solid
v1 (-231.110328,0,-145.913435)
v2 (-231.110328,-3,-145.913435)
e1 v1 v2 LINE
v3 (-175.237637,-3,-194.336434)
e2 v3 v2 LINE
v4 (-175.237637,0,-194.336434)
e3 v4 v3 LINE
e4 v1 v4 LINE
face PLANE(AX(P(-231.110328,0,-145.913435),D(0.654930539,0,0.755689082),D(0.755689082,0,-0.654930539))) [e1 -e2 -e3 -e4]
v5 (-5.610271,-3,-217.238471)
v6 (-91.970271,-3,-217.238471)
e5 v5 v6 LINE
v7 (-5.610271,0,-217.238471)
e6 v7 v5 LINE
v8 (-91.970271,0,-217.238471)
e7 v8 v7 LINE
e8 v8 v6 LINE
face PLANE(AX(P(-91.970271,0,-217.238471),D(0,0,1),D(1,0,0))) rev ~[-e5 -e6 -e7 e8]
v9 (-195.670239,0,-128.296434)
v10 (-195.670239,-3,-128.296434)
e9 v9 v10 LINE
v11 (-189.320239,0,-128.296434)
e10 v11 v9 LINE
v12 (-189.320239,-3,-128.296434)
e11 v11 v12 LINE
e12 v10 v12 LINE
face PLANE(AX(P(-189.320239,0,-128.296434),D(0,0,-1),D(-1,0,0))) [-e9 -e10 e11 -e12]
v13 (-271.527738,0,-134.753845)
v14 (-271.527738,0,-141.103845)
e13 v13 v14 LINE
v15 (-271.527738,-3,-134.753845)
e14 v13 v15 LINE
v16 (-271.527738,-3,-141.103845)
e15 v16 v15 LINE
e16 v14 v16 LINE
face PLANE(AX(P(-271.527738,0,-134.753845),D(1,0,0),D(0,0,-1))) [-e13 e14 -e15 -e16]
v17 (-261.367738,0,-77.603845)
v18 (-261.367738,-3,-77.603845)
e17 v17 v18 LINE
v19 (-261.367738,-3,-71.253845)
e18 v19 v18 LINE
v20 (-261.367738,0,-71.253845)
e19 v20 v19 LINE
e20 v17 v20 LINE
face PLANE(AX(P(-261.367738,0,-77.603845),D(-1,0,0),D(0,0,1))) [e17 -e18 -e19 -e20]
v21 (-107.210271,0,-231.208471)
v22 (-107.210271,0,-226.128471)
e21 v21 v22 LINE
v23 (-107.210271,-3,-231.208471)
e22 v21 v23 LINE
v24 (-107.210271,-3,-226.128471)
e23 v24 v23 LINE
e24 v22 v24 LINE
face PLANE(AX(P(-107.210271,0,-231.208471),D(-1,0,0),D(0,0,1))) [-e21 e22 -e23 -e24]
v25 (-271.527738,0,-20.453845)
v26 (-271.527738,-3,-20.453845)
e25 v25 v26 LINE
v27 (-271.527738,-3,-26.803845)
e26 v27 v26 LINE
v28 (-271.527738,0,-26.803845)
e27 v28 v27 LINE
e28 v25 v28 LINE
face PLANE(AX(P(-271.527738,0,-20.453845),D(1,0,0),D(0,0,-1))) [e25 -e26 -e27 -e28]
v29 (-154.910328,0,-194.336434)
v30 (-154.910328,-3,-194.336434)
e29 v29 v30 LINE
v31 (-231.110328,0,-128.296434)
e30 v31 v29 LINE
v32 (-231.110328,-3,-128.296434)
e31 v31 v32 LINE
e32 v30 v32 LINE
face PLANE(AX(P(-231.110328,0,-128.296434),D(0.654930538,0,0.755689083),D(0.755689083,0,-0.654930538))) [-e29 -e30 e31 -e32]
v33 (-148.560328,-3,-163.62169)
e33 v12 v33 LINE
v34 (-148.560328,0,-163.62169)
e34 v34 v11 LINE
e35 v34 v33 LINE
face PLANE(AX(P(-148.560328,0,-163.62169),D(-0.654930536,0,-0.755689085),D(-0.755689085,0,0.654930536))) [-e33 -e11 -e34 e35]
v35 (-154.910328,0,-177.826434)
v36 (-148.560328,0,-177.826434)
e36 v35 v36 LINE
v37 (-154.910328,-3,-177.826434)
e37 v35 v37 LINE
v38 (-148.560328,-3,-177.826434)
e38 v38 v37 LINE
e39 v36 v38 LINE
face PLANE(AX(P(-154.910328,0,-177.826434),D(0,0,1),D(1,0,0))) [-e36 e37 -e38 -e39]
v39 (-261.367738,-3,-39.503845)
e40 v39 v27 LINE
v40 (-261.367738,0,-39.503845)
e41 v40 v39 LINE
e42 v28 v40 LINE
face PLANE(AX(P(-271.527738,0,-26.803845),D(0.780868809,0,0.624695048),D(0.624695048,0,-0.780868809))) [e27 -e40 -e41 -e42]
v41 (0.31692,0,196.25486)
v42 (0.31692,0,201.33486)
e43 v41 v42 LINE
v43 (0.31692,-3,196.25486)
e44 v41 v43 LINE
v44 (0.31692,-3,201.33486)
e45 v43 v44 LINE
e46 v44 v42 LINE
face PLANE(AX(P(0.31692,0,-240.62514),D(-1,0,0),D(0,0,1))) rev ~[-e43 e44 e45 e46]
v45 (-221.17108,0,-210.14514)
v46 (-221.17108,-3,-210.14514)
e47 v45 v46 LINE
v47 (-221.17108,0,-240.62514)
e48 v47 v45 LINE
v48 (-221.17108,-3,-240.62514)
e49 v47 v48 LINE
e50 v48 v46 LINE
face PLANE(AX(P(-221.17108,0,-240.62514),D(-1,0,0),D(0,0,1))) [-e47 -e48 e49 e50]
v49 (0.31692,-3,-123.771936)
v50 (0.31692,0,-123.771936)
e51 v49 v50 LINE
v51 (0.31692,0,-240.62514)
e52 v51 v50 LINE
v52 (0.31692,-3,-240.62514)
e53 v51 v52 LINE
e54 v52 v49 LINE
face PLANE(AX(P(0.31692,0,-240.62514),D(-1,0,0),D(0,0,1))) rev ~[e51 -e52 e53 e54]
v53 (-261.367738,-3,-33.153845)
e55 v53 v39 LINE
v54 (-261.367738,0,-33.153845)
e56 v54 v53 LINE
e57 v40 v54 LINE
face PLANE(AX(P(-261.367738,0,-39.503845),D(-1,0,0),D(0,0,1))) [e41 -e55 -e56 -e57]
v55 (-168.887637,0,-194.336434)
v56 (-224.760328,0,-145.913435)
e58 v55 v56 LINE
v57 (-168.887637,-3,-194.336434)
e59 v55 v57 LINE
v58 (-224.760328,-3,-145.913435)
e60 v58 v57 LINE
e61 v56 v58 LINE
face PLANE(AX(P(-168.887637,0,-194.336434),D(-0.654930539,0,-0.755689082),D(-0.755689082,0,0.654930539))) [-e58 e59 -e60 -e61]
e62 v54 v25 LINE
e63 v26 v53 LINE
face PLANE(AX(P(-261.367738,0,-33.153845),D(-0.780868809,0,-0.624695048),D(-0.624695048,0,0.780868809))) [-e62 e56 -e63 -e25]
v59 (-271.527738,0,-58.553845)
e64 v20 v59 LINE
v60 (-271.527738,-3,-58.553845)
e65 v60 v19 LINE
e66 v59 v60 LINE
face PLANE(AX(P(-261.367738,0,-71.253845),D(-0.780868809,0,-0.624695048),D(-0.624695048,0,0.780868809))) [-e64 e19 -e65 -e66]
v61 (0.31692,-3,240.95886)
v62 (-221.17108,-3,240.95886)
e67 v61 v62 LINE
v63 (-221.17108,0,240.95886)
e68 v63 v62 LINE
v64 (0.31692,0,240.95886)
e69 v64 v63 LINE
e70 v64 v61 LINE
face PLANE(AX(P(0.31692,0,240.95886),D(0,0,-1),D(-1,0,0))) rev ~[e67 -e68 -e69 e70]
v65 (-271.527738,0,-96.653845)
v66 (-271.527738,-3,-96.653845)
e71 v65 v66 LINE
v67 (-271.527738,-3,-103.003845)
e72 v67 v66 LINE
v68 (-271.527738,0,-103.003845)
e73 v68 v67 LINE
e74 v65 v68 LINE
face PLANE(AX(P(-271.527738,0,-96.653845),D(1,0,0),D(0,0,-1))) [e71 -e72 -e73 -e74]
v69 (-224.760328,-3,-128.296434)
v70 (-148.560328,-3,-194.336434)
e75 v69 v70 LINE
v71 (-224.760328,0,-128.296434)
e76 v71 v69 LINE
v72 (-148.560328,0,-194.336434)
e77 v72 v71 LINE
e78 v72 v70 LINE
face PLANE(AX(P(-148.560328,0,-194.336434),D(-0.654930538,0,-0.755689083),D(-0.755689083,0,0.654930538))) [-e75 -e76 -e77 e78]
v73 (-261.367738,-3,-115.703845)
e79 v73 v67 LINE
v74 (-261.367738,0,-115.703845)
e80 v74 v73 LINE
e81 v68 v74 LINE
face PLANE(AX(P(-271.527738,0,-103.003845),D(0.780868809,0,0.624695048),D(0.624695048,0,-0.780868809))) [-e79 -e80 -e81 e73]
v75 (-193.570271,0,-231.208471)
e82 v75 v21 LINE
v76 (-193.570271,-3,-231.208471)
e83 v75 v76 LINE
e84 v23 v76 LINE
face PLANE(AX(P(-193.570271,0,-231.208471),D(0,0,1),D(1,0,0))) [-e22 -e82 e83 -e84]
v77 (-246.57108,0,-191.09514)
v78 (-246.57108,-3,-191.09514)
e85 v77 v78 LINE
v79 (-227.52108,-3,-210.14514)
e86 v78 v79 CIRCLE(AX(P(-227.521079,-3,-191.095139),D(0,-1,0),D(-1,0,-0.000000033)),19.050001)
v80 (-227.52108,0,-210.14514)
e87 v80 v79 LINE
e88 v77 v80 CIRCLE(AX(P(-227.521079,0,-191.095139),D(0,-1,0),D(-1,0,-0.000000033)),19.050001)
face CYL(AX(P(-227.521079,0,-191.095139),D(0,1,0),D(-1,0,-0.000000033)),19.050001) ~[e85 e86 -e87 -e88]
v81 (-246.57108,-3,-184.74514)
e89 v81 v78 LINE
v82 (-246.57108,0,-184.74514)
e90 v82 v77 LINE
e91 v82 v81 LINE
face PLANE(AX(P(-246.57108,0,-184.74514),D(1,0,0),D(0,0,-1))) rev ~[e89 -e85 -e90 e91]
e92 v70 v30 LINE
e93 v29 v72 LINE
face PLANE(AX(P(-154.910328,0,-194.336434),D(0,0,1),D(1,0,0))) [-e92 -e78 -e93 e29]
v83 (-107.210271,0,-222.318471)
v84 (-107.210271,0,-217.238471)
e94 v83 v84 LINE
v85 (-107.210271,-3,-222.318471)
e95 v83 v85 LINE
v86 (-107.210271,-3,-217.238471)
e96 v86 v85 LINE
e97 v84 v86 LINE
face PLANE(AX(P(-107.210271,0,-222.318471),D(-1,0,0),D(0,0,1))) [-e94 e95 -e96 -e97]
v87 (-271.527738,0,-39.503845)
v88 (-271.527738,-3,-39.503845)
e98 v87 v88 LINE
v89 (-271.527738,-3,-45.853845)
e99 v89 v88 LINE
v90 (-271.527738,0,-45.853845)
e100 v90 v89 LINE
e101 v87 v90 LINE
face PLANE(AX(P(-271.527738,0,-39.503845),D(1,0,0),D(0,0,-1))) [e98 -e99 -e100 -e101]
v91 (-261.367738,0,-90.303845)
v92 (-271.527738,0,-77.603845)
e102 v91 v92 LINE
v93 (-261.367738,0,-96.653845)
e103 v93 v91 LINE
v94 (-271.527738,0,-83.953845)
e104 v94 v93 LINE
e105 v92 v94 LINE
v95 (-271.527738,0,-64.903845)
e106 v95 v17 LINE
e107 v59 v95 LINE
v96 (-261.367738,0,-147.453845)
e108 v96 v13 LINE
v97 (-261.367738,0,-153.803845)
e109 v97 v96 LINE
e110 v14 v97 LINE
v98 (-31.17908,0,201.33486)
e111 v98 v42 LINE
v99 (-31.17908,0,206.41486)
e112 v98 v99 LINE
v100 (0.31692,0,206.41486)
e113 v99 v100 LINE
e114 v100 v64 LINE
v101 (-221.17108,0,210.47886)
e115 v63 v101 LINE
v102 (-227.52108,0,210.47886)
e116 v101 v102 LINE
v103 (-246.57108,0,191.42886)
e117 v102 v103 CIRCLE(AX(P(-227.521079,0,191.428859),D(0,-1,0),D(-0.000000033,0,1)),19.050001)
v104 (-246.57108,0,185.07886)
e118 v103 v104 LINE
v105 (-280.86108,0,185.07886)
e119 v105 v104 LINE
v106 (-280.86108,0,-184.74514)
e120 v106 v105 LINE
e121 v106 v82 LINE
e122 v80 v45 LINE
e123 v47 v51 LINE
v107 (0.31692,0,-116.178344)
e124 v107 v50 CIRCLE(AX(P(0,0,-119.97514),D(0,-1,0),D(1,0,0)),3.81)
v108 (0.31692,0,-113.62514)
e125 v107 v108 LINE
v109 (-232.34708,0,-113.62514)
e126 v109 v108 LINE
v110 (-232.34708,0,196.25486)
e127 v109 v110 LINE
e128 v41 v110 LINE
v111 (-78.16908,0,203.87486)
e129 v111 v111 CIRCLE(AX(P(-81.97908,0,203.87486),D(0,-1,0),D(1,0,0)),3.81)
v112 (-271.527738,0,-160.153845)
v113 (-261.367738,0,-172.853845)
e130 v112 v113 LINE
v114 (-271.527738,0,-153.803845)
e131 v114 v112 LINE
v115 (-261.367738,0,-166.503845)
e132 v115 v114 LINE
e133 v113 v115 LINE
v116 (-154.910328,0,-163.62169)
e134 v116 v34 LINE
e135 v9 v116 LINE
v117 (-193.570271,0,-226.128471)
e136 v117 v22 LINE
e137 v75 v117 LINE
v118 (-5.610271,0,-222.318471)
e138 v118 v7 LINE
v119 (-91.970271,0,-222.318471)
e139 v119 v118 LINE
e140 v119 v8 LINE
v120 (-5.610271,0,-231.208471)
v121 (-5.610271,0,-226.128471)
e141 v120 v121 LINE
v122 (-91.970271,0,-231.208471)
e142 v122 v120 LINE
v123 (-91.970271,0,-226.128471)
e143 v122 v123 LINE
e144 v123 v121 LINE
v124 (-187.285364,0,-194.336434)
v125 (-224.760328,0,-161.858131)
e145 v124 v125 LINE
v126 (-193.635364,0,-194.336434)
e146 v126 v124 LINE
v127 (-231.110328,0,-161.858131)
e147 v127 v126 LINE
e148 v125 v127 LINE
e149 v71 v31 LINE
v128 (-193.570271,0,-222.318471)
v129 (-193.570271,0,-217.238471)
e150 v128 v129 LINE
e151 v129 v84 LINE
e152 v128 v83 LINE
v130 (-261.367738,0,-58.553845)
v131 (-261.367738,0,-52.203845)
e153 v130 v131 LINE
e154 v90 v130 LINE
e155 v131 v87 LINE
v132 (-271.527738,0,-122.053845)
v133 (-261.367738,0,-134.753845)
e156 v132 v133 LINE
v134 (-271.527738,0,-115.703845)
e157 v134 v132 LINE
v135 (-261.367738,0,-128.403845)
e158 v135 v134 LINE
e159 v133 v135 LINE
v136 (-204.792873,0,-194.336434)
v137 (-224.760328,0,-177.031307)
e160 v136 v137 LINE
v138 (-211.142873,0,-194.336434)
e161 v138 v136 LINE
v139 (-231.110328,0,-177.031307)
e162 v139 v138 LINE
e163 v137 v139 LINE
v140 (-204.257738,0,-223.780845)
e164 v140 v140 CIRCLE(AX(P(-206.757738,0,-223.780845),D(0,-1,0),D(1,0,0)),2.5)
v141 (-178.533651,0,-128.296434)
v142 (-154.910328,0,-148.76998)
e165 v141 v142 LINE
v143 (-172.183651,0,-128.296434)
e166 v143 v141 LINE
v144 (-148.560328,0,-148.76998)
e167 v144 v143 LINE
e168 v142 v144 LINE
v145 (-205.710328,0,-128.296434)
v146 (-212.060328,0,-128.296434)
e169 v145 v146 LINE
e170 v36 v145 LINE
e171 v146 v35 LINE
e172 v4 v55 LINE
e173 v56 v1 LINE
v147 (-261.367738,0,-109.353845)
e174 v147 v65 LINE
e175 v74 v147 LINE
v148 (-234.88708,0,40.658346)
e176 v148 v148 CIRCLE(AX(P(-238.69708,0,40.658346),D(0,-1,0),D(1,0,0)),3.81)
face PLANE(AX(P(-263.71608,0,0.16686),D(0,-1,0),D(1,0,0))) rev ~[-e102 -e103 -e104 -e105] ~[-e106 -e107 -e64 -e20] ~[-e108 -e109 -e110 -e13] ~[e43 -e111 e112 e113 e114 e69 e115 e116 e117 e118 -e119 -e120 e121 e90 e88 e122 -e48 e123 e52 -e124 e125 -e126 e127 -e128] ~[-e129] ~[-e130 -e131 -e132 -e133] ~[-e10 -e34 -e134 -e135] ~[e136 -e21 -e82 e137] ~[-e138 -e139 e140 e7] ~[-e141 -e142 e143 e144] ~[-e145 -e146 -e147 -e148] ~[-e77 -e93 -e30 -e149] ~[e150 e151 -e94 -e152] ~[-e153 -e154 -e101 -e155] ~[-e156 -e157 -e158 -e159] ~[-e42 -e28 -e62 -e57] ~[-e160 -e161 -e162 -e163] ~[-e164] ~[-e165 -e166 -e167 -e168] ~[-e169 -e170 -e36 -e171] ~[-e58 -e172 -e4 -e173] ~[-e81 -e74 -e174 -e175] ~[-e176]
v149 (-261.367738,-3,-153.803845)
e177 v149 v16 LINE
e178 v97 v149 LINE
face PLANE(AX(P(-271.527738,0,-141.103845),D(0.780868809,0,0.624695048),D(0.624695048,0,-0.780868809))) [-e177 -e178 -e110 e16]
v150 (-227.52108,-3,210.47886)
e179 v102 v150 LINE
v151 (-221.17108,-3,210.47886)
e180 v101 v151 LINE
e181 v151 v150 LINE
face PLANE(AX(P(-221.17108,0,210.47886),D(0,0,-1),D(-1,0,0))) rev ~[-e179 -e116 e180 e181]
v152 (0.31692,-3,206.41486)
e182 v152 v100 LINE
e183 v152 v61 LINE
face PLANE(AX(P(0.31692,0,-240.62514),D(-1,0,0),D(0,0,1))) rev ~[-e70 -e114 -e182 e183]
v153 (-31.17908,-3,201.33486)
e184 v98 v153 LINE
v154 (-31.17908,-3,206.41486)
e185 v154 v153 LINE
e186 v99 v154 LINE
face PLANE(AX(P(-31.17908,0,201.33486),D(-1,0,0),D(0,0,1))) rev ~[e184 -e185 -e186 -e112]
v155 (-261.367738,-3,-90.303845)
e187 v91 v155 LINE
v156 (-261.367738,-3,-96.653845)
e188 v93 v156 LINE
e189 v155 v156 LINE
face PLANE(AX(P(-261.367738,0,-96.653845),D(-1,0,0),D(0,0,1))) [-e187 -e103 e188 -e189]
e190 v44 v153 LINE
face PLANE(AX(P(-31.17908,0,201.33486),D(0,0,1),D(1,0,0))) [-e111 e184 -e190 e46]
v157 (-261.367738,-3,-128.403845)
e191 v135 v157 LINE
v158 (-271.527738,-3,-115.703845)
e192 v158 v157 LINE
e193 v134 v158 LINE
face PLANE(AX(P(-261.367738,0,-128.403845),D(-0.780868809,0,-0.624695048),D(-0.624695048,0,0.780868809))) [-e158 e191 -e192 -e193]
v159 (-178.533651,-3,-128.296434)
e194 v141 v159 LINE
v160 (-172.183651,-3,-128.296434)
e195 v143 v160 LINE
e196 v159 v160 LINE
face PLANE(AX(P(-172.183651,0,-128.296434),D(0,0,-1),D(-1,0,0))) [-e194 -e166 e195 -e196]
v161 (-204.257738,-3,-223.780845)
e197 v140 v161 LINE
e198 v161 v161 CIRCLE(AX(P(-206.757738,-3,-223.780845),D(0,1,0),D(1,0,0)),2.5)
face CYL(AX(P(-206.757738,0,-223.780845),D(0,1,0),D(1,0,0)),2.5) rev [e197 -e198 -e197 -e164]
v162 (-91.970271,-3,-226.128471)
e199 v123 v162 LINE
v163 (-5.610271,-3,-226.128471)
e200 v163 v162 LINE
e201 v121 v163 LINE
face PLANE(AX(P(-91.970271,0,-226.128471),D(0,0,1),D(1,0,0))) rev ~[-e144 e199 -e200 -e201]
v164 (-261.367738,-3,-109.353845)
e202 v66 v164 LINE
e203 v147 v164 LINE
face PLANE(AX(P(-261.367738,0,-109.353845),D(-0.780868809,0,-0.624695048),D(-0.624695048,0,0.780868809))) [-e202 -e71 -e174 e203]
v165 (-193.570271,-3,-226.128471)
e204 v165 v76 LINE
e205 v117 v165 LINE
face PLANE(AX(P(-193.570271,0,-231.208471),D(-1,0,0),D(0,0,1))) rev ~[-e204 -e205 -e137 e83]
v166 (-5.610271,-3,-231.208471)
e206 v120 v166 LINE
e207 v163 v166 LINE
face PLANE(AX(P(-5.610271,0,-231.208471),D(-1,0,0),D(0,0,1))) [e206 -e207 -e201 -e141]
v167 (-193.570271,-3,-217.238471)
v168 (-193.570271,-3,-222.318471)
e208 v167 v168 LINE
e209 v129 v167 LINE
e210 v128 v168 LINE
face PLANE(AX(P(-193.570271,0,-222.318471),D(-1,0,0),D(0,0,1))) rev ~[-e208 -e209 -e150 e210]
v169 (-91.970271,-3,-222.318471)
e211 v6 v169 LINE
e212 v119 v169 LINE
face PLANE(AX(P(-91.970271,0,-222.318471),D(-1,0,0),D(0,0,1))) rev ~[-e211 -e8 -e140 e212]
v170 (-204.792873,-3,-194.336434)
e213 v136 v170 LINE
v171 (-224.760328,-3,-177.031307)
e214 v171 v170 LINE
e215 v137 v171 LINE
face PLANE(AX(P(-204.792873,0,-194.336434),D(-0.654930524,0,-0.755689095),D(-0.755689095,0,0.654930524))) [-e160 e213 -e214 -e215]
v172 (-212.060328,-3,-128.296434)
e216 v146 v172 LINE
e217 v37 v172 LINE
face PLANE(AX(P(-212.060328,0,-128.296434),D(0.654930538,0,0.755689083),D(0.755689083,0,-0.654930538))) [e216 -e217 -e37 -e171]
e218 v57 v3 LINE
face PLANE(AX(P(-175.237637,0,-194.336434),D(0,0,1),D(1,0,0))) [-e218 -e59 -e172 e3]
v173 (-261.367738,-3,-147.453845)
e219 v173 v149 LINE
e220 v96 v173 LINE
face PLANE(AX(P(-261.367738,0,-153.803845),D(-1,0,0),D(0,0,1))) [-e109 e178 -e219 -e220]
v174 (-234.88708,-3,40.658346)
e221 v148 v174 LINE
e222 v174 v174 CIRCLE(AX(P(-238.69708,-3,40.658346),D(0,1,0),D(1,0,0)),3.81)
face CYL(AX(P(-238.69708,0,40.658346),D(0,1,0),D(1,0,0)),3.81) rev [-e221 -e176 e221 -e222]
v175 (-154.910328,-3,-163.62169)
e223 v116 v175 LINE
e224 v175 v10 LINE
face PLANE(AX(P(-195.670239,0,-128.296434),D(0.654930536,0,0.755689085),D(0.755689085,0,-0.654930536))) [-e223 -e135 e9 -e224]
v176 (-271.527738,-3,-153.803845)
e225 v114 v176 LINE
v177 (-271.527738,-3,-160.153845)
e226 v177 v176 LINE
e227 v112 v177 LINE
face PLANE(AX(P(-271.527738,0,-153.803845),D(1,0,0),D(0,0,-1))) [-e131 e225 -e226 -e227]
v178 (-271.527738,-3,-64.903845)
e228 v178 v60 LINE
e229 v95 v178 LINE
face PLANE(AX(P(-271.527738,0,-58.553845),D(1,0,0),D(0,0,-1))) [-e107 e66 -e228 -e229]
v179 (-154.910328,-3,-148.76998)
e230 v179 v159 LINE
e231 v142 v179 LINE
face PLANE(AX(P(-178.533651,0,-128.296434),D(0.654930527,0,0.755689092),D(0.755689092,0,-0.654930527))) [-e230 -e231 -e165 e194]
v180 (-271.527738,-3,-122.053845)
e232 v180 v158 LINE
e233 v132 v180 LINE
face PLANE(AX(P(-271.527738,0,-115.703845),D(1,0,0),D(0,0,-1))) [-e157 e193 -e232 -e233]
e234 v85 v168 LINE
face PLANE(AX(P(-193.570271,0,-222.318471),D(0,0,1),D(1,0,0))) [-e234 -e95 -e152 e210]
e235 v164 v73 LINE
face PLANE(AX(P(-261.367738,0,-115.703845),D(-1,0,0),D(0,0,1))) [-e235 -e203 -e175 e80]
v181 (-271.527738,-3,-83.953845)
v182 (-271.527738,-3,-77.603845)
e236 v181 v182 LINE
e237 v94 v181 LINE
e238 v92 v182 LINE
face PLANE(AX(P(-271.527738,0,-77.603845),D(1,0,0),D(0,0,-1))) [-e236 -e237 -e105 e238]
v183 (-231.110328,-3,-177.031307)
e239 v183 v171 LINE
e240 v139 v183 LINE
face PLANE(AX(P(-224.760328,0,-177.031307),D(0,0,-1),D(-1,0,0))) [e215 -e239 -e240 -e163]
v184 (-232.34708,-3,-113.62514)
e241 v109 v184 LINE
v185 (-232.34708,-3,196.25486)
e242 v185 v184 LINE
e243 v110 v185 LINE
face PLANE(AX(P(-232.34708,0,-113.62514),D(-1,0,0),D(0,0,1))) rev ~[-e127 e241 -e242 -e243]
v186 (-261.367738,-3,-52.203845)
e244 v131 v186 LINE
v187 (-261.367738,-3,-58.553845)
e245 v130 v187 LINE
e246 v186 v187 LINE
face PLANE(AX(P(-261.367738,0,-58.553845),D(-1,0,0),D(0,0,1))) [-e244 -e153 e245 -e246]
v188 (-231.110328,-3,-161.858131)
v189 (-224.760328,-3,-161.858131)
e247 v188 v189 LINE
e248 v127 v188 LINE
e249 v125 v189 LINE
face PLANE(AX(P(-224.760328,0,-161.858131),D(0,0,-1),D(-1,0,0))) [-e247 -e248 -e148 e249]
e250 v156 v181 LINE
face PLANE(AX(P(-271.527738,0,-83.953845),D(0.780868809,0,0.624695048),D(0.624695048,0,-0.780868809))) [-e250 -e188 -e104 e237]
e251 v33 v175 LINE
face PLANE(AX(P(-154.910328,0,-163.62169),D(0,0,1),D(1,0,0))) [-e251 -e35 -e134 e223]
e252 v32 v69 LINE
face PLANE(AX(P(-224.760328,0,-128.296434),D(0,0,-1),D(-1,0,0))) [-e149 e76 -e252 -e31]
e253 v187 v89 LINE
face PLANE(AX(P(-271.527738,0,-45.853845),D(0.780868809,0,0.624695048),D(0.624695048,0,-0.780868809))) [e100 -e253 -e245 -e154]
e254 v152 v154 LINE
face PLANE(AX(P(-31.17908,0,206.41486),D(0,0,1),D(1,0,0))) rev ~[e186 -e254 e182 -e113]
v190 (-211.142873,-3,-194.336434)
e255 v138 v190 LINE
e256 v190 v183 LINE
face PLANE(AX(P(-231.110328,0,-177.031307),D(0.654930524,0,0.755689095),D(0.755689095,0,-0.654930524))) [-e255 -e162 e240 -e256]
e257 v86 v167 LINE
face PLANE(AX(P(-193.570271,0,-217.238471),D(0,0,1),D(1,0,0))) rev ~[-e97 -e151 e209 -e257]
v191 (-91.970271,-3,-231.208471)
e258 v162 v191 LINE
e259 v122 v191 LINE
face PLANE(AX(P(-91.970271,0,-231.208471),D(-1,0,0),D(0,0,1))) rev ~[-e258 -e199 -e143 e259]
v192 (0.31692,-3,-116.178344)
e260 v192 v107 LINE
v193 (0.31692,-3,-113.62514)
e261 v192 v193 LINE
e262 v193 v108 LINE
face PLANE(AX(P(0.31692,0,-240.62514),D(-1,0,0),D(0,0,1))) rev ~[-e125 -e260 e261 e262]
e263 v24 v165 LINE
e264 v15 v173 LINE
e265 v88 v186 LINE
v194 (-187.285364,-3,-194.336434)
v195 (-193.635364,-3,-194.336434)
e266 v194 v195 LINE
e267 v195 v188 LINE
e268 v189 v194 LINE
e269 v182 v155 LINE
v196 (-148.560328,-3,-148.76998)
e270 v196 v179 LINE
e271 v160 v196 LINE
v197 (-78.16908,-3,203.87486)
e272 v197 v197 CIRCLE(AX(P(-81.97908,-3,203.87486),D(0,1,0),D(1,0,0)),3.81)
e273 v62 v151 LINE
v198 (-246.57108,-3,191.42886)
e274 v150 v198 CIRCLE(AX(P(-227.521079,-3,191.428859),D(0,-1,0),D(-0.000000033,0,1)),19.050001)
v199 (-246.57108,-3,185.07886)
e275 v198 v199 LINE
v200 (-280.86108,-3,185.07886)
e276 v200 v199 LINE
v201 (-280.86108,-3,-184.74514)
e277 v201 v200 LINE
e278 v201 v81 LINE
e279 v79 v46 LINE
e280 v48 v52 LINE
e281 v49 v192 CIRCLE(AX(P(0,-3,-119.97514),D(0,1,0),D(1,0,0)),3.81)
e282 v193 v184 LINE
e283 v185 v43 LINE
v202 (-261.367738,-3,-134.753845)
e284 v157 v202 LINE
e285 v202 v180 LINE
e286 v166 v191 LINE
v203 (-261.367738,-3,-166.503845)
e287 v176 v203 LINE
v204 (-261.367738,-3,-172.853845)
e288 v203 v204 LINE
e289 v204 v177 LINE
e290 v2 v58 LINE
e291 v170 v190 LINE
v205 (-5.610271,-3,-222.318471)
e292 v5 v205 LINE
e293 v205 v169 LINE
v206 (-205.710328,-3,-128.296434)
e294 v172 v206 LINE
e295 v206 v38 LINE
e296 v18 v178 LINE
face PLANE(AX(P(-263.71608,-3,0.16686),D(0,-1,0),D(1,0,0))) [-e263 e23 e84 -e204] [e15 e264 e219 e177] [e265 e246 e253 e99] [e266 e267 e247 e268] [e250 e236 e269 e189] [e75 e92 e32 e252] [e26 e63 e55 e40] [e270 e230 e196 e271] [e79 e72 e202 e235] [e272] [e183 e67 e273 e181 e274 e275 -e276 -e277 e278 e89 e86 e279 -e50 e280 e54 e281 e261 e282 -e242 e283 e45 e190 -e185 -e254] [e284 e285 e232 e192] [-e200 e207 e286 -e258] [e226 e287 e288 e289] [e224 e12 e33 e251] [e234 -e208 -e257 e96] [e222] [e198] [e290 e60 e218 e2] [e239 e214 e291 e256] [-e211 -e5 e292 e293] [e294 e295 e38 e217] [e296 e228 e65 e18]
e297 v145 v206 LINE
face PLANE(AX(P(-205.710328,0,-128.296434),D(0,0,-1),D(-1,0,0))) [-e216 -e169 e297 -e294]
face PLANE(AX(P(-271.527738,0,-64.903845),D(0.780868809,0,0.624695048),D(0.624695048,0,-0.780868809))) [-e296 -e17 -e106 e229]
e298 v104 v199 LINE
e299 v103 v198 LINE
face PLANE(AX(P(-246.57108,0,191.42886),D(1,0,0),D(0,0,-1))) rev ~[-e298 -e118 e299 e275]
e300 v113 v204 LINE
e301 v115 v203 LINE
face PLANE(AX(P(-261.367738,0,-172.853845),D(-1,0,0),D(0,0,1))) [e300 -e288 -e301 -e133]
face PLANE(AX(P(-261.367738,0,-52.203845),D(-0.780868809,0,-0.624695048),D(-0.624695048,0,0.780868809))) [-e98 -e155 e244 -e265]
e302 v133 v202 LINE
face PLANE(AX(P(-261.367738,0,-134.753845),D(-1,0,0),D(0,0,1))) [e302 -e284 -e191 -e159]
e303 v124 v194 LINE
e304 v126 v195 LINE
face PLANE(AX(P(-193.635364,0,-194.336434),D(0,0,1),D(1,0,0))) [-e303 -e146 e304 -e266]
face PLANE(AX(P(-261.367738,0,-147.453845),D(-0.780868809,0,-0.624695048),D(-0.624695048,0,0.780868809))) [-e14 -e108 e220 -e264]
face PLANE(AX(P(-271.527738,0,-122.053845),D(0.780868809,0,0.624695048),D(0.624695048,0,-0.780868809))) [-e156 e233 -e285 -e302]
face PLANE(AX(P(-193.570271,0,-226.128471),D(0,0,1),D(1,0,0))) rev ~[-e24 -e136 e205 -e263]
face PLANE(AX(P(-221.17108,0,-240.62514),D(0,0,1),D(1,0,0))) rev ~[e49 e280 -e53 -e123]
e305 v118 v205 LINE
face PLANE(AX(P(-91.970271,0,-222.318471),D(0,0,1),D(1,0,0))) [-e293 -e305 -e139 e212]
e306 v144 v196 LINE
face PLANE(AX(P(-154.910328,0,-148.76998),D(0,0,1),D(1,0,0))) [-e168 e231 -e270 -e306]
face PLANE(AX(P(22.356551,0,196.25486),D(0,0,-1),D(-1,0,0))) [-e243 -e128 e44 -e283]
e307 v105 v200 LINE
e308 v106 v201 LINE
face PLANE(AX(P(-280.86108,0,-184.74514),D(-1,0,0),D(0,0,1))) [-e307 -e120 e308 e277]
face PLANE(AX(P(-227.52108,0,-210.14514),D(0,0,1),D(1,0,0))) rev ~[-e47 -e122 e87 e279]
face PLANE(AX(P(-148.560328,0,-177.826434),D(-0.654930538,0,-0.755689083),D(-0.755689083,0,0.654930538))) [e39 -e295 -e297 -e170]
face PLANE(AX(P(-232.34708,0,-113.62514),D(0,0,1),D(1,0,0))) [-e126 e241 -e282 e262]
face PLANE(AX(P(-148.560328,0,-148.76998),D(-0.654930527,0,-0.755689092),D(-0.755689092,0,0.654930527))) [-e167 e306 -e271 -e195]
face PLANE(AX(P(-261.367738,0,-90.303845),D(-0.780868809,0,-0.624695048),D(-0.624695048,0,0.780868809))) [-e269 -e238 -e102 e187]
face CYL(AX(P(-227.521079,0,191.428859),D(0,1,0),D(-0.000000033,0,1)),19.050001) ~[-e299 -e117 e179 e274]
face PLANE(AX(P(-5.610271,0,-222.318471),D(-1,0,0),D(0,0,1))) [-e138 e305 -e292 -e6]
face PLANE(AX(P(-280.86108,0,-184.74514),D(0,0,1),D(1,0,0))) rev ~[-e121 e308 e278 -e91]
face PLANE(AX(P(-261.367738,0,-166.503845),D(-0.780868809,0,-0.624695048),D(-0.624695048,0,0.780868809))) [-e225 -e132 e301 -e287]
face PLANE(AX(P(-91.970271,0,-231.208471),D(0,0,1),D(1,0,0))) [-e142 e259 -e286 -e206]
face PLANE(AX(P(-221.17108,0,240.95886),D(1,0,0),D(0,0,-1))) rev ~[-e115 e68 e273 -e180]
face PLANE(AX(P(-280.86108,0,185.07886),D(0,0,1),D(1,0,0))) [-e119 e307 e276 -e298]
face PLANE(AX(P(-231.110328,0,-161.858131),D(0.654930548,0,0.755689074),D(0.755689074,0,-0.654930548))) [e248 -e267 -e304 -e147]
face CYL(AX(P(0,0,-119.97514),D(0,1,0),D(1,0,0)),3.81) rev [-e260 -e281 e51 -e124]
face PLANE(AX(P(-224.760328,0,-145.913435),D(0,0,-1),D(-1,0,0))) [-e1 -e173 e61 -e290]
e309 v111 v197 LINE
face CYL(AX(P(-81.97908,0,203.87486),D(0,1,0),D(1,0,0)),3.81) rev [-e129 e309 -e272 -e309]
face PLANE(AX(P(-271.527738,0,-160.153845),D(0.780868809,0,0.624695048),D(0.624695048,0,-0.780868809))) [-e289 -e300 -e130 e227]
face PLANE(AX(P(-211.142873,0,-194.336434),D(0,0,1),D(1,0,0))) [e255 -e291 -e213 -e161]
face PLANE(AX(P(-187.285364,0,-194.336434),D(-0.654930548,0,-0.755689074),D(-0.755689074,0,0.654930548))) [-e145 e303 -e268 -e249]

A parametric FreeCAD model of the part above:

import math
import FreeCAD as App
import Part
import Sketcher
Q = App.Units.Quantity

doc = App.newDocument("Part")
body = doc.addObject("PartDesign::Body", "Body")

# Sketch on XZ plane
sketch1 = doc.addObject("Sketcher::SketchObject", "Sketch")
body.addObject(sketch1)
sketch1.AttachmentSupport = (doc.XZ_Plane, [""])
sketch1.MapMode = "FlatFace"
sketch1.addGeometry([
    Part.LineSegment(App.Vector(-280.86108, 185.07886, 0), App.Vector(-280.86108, -184.74514, 0)),  # 0
    Part.LineSegment(App.Vector(-280.86108, -184.74514, 0), App.Vector(-246.57108, -184.74514, 0)),  # 1
    Part.LineSegment(App.Vector(-246.57108, -184.74514, 0), App.Vector(-246.57108, -191.09514, 0)),  # 2
    Part.ArcOfCircle(Part.Circle(App.Vector(-227.521079, -191.095139, 0), App.Vector(0, 0, 1), 19.050001), math.radians(-179.999998), math.radians(-90.000002)),  # 3
    Part.LineSegment(App.Vector(-227.52108, -210.14514, 0), App.Vector(-221.17108, -210.14514, 0)),  # 4
    Part.LineSegment(App.Vector(-221.17108, -210.14514, 0), App.Vector(-221.17108, -240.62514, 0)),  # 5
    Part.LineSegment(App.Vector(-221.17108, -240.62514, 0), App.Vector(0.31692, -240.62514, 0)),  # 6
    Part.LineSegment(App.Vector(0.31692, -240.62514, 0), App.Vector(0.31692, 240.95886, 0)),  # 7
    Part.LineSegment(App.Vector(0.31692, 240.95886, 0), App.Vector(-221.17108, 240.95886, 0)),  # 8
    Part.LineSegment(App.Vector(-221.17108, 240.95886, 0), App.Vector(-221.17108, 210.47886, 0)),  # 9
    Part.LineSegment(App.Vector(-221.17108, 210.47886, 0), App.Vector(-227.52108, 210.47886, 0)),  # 10
    Part.ArcOfCircle(Part.Circle(App.Vector(-227.521079, 191.428859, 0), App.Vector(0, 0, 1), 19.050001), math.radians(90.000002), math.radians(179.999998)),  # 11
    Part.LineSegment(App.Vector(-246.57108, 191.42886, 0), App.Vector(-246.57108, 185.07886, 0)),  # 12
    Part.LineSegment(App.Vector(-246.57108, 185.07886, 0), App.Vector(-280.86108, 185.07886, 0)),  # 13
], False)
sketch1.addConstraint([
    Sketcher.Constraint("Coincident", 0, 2, 1, 1),
    Sketcher.Constraint("Coincident", 1, 2, 2, 1),
    Sketcher.Constraint("Tangent", 2, 2, 3, 1),
    Sketcher.Constraint("Tangent", 3, 2, 4, 1),
    Sketcher.Constraint("Coincident", 4, 2, 5, 1),
    Sketcher.Constraint("Coincident", 5, 2, 6, 1),
    Sketcher.Constraint("Coincident", 6, 2, 7, 1),
    Sketcher.Constraint("Coincident", 7, 2, 8, 1),
    Sketcher.Constraint("Coincident", 8, 2, 9, 1),
    Sketcher.Constraint("Coincident", 9, 2, 10, 1),
    Sketcher.Constraint("Tangent", 10, 2, 11, 1),
    Sketcher.Constraint("Tangent", 11, 2, 12, 1),
    Sketcher.Constraint("Coincident", 12, 2, 13, 1),
    Sketcher.Constraint("Coincident", 13, 2, 0, 1),
    Sketcher.Constraint("Vertical", 0),
    Sketcher.Constraint("Horizontal", 1),
    Sketcher.Constraint("Vertical", 2),
    Sketcher.Constraint("Horizontal", 4),
    Sketcher.Constraint("Vertical", 5),
    Sketcher.Constraint("Horizontal", 6),
    Sketcher.Constraint("Vertical", 7),
    Sketcher.Constraint("Horizontal", 8),
    Sketcher.Constraint("Vertical", 9),
    Sketcher.Constraint("Horizontal", 10),
    Sketcher.Constraint("Vertical", 12),
    Sketcher.Constraint("Horizontal", 13),
    Sketcher.Constraint("Equal", 3, 11),
    Sketcher.Constraint("Vertical", 3, 3, 11, 3),
    Sketcher.Constraint("Vertical", 5, 2, 8, 2),
    Sketcher.Constraint("Equal", 10, 2),
    Sketcher.Constraint("Equal", 5, 9),
    Sketcher.Constraint("Equal", 2, 12),
    Sketcher.Constraint("Radius", 3, Q("0.75 in")),
    Sketcher.Constraint("DistanceY", 5, 2, 5, 1, Q("1.2 in")),
    Sketcher.Constraint("DistanceY", 3, 2, 1, 2, Q("1 in")),
    Sketcher.Constraint("DistanceX", 1, 1, 1, 2, Q("1.35 in")),
    Sketcher.Constraint("DistanceX", 6, 1, 6, 2, Q("8.72 in")),
    Sketcher.Constraint("DistanceY", 0, 2, 0, 1, Q("14.56 in")),
    Sketcher.Constraint("DistanceX", 3, 3, -1, 1, 227.521079),
    Sketcher.Constraint("DistanceY", 3, 3, -1, 1, 191.095139),
])
pad1 = doc.addObject("PartDesign::Pad", "Pad")
body.addObject(pad1)
pad1.Profile = sketch1
pad1.Length = 3

# Sketch on XZ plane
sketch2 = doc.addObject("Sketcher::SketchObject", "Sketch001")
body.addObject(sketch2)
sketch2.AttachmentSupport = (doc.XZ_Plane, [""])
sketch2.MapMode = "FlatFace"
sketch2.addGeometry([
    Part.LineSegment(App.Vector(-232.34708, 196.25486, 0), App.Vector(-232.34708, -113.62514, 0)),  # 0
    Part.LineSegment(App.Vector(-232.34708, -113.62514, 0), App.Vector(22.356551, -113.62514, 0)),  # 1
    Part.LineSegment(App.Vector(22.356551, -113.62514, 0), App.Vector(22.356551, 196.25486, 0)),  # 2
    Part.LineSegment(App.Vector(22.356551, 196.25486, 0), App.Vector(-232.34708, 196.25486, 0)),  # 3
    Part.LineSegment(App.Vector(-261.367738, -166.503845, 0), App.Vector(-271.527738, -153.803845, 0)),  # 4
    Part.LineSegment(App.Vector(-271.527738, -153.803845, 0), App.Vector(-271.527738, -160.153845, 0)),  # 5
    Part.LineSegment(App.Vector(-271.527738, -160.153845, 0), App.Vector(-261.367738, -172.853845, 0)),  # 6
    Part.LineSegment(App.Vector(-261.367738, -172.853845, 0), App.Vector(-261.367738, -166.503845, 0)),  # 7
    Part.LineSegment(App.Vector(-271.527738, -134.753845, 0), App.Vector(-271.527738, -141.103845, 0)),  # 8
    Part.LineSegment(App.Vector(-271.527738, -141.103845, 0), App.Vector(-261.367738, -153.803845, 0)),  # 9
    Part.LineSegment(App.Vector(-261.367738, -153.803845, 0), App.Vector(-261.367738, -147.453845, 0)),  # 10
    Part.LineSegment(App.Vector(-261.367738, -147.453845, 0), App.Vector(-271.527738, -134.753845, 0)),  # 11
    Part.LineSegment(App.Vector(-271.527738, -122.053845, 0), App.Vector(-261.367738, -134.753845, 0)),  # 12
    Part.LineSegment(App.Vector(-261.367738, -134.753845, 0), App.Vector(-261.367738, -128.403845, 0)),  # 13
    Part.LineSegment(App.Vector(-261.367738, -128.403845, 0), App.Vector(-271.527738, -115.703845, 0)),  # 14
    Part.LineSegment(App.Vector(-271.527738, -115.703845, 0), App.Vector(-271.527738, -122.053845, 0)),  # 15
    Part.LineSegment(App.Vector(-271.527738, -103.003845, 0), App.Vector(-261.367738, -115.703845, 0)),  # 16
    Part.LineSegment(App.Vector(-261.367738, -115.703845, 0), App.Vector(-261.367738, -109.353845, 0)),  # 17
    Part.LineSegment(App.Vector(-261.367738, -109.353845, 0), App.Vector(-271.527738, -96.653845, 0)),  # 18
    Part.LineSegment(App.Vector(-271.527738, -96.653845, 0), App.Vector(-271.527738, -103.003845, 0)),  # 19
    Part.LineSegment(App.Vector(-271.527738, -83.953845, 0), App.Vector(-261.367738, -96.653845, 0)),  # 20
    Part.LineSegment(App.Vector(-261.367738, -96.653845, 0), App.Vector(-261.367738, -90.303845, 0)),  # 21
    Part.LineSegment(App.Vector(-261.367738, -90.303845, 0), App.Vector(-271.527738, -77.603845, 0)),  # 22
    Part.LineSegment(App.Vector(-271.527738, -77.603845, 0), App.Vector(-271.527738, -83.953845, 0)),  # 23
    Part.LineSegment(App.Vector(-271.527738, -64.903845, 0), App.Vector(-261.367738, -77.603845, 0)),  # 24
    Part.LineSegment(App.Vector(-261.367738, -77.603845, 0), App.Vector(-261.367738, -71.253845, 0)),  # 25
    Part.LineSegment(App.Vector(-261.367738, -71.253845, 0), App.Vector(-271.527738, -58.553845, 0)),  # 26
    Part.LineSegment(App.Vector(-271.527738, -58.553845, 0), App.Vector(-271.527738, -64.903845, 0)),  # 27
    Part.LineSegment(App.Vector(-271.527738, -45.853845, 0), App.Vector(-261.367738, -58.553845, 0)),  # 28
    Part.LineSegment(App.Vector(-261.367738, -58.553845, 0), App.Vector(-261.367738, -52.203845, 0)),  # 29
    Part.LineSegment(App.Vector(-261.367738, -52.203845, 0), App.Vector(-271.527738, -39.503845, 0)),  # 30
    Part.LineSegment(App.Vector(-271.527738, -39.503845, 0), App.Vector(-271.527738, -45.853845, 0)),  # 31
    Part.LineSegment(App.Vector(-271.527738, -26.803845, 0), App.Vector(-261.367738, -39.503845, 0)),  # 32
    Part.LineSegment(App.Vector(-261.367738, -39.503845, 0), App.Vector(-261.367738, -33.153845, 0)),  # 33
    Part.LineSegment(App.Vector(-261.367738, -33.153845, 0), App.Vector(-271.527738, -20.453845, 0)),  # 34
    Part.LineSegment(App.Vector(-271.527738, -20.453845, 0), App.Vector(-271.527738, -26.803845, 0)),  # 35
    Part.LineSegment(App.Vector(-193.570271, -226.128471, 0), App.Vector(-193.570271, -231.208471, 0)),  # 36
    Part.LineSegment(App.Vector(-193.570271, -231.208471, 0), App.Vector(-107.210271, -231.208471, 0)),  # 37
    Part.LineSegment(App.Vector(-107.210271, -231.208471, 0), App.Vector(-107.210271, -226.128471, 0)),  # 38
    Part.LineSegment(App.Vector(-107.210271, -226.128471, 0), App.Vector(-193.570271, -226.128471, 0)),  # 39
    Part.LineSegment(App.Vector(-193.570271, -217.238471, 0), App.Vector(-193.570271, -222.318471, 0)),  # 40
    Part.LineSegment(App.Vector(-193.570271, -222.318471, 0), App.Vector(-107.210271, -222.318471, 0)),  # 41
    Part.LineSegment(App.Vector(-107.210271, -222.318471, 0), App.Vector(-107.210271, -217.238471, 0)),  # 42
    Part.LineSegment(App.Vector(-107.210271, -217.238471, 0), App.Vector(-193.570271, -217.238471, 0)),  # 43
    Part.LineSegment(App.Vector(-91.970271, -217.238471, 0), App.Vector(-91.970271, -222.318471, 0)),  # 44
    Part.LineSegment(App.Vector(-91.970271, -222.318471, 0), App.Vector(-5.610271, -222.318471, 0)),  # 45
    Part.LineSegment(App.Vector(-5.610271, -222.318471, 0), App.Vector(-5.610271, -217.238471, 0)),  # 46
    Part.LineSegment(App.Vector(-5.610271, -217.238471, 0), App.Vector(-91.970271, -217.238471, 0)),  # 47
    Part.LineSegment(App.Vector(-91.970271, -226.128471, 0), App.Vector(-91.970271, -231.208471, 0)),  # 48
    Part.LineSegment(App.Vector(-91.970271, -231.208471, 0), App.Vector(-5.610271, -231.208471, 0)),  # 49
    Part.LineSegment(App.Vector(-5.610271, -231.208471, 0), App.Vector(-5.610271, -226.128471, 0)),  # 50
    Part.LineSegment(App.Vector(-5.610271, -226.128471, 0), App.Vector(-91.970271, -226.128471, 0)),  # 51
    Part.Circle(App.Vector(-206.757738, -223.780845, 0), App.Vector(0, 0, 1), 2.5),  # 52
    Part.Circle(App.Vector(-81.97908, 203.87486, 0), App.Vector(0, 0, 1), 3.81),  # 53
    Part.Circle(App.Vector(-238.69708, 40.658346, 0), App.Vector(0, 0, 1), 3.81),  # 54
    Part.Circle(App.Vector(0, -119.97514, 0), App.Vector(0, 0, 1), 3.81),  # 55
    Part.LineSegment(App.Vector(-31.17908, 206.41486, 0), App.Vector(-31.17908, 201.33486, 0)),  # 56
    Part.LineSegment(App.Vector(-31.17908, 201.33486, 0), App.Vector(25.840832, 201.33486, 0)),  # 57
    Part.LineSegment(App.Vector(25.840832, 201.33486, 0), App.Vector(25.840832, 206.41486, 0)),  # 58
    Part.LineSegment(App.Vector(25.840832, 206.41486, 0), App.Vector(-31.17908, 206.41486, 0)),  # 59
], False)
sketch2.addConstraint([
    Sketcher.Constraint("Coincident", 0, 2, 1, 1),
    Sketcher.Constraint("Coincident", 1, 2, 2, 1),
    Sketcher.Constraint("Coincident", 2, 2, 3, 1),
    Sketcher.Constraint("Coincident", 3, 2, 0, 1),
    Sketcher.Constraint("Coincident", 4, 2, 5, 1),
    Sketcher.Constraint("Coincident", 5, 2, 6, 1),
    Sketcher.Constraint("Coincident", 6, 2, 7, 1),
    Sketcher.Constraint("Coincident", 7, 2, 4, 1),
    Sketcher.Constraint("Coincident", 8, 2, 9, 1),
    Sketcher.Constraint("Coincident", 9, 2, 10, 1),
    Sketcher.Constraint("Coincident", 10, 2, 11, 1),
    Sketcher.Constraint("Coincident", 11, 2, 8, 1),
    Sketcher.Constraint("Coincident", 12, 2, 13, 1),
    Sketcher.Constraint("Coincident", 13, 2, 14, 1),
    Sketcher.Constraint("Coincident", 14, 2, 15, 1),
    Sketcher.Constraint("Coincident", 15, 2, 12, 1),
    Sketcher.Constraint("Coincident", 16, 2, 17, 1),
    Sketcher.Constraint("Coincident", 17, 2, 18, 1),
    Sketcher.Constraint("Coincident", 18, 2, 19, 1),
    Sketcher.Constraint("Coincident", 19, 2, 16, 1),
    Sketcher.Constraint("Coincident", 20, 2, 21, 1),
    Sketcher.Constraint("Coincident", 21, 2, 22, 1),
    Sketcher.Constraint("Coincident", 22, 2, 23, 1),
    Sketcher.Constraint("Coincident", 23, 2, 20, 1),
    Sketcher.Constraint("Coincident", 24, 2, 25, 1),
    Sketcher.Constraint("Coincident", 25, 2, 26, 1),
    Sketcher.Constraint("Coincident", 26, 2, 27, 1),
    Sketcher.Constraint("Coincident", 27, 2, 24, 1),
    Sketcher.Constraint("Coincident", 28, 2, 29, 1),
    Sketcher.Constraint("Coincident", 29, 2, 30, 1),
    Sketcher.Constraint("Coincident", 30, 2, 31, 1),
    Sketcher.Constraint("Coincident", 31, 2, 28, 1),
    Sketcher.Constraint("Coincident", 32, 2, 33, 1),
    Sketcher.Constraint("Coincident", 33, 2, 34, 1),
    Sketcher.Constraint("Coincident", 34, 2, 35, 1),
    Sketcher.Constraint("Coincident", 35, 2, 32, 1),
    Sketcher.Constraint("Coincident", 36, 2, 37, 1),
    Sketcher.Constraint("Coincident", 37, 2, 38, 1),
    Sketcher.Constraint("Coincident", 38, 2, 39, 1),
    Sketcher.Constraint("Coincident", 39, 2, 36, 1),
    Sketcher.Constraint("Coincident", 40, 2, 41, 1),
    Sketcher.Constraint("Coincident", 41, 2, 42, 1),
    Sketcher.Constraint("Coincident", 42, 2, 43, 1),
    Sketcher.Constraint("Coincident", 43, 2, 40, 1),
    Sketcher.Constraint("Coincident", 44, 2, 45, 1),
    Sketcher.Constraint("Coincident", 45, 2, 46, 1),
    Sketcher.Constraint("Coincident", 46, 2, 47, 1),
    Sketcher.Constraint("Coincident", 47, 2, 44, 1),
    Sketcher.Constraint("Coincident", 48, 2, 49, 1),
    Sketcher.Constraint("Coincident", 49, 2, 50, 1),
    Sketcher.Constraint("Coincident", 50, 2, 51, 1),
    Sketcher.Constraint("Coincident", 51, 2, 48, 1),
    Sketcher.Constraint("Coincident", 56, 2, 57, 1),
    Sketcher.Constraint("Coincident", 57, 2, 58, 1),
    Sketcher.Constraint("Coincident", 58, 2, 59, 1),
    Sketcher.Constraint("Coincident", 59, 2, 56, 1),
    Sketcher.Constraint("Vertical", 0),
    Sketcher.Constraint("Horizontal", 1),
    Sketcher.Constraint("Vertical", 2),
    Sketcher.Constraint("Horizontal", 3),
    Sketcher.Constraint("Vertical", 5),
    Sketcher.Constraint("Vertical", 7),
    Sketcher.Constraint("Vertical", 8),
    Sketcher.Constraint("Vertical", 10),
    Sketcher.Constraint("Vertical", 13),
    Sketcher.Constraint("Vertical", 15),
    Sketcher.Constraint("Vertical", 17),
    Sketcher.Constraint("Vertical", 19),
    Sketcher.Constraint("Vertical", 21),
    Sketcher.Constraint("Vertical", 23),
    Sketcher.Constraint("Vertical", 25),
    Sketcher.Constraint("Vertical", 27),
    Sketcher.Constraint("Vertical", 29),
    Sketcher.Constraint("Vertical", 31),
    Sketcher.Constraint("Vertical", 33),
    Sketcher.Constraint("Vertical", 35),
    Sketcher.Constraint("Vertical", 36),
    Sketcher.Constraint("Horizontal", 37),
    Sketcher.Constraint("Vertical", 38),
    Sketcher.Constraint("Horizontal", 39),
    Sketcher.Constraint("Vertical", 40),
    Sketcher.Constraint("Horizontal", 41),
    Sketcher.Constraint("Vertical", 42),
    Sketcher.Constraint("Horizontal", 43),
    Sketcher.Constraint("Vertical", 44),
    Sketcher.Constraint("Horizontal", 45),
    Sketcher.Constraint("Vertical", 46),
    Sketcher.Constraint("Horizontal", 47),
    Sketcher.Constraint("Vertical", 48),
    Sketcher.Constraint("Horizontal", 49),
    Sketcher.Constraint("Vertical", 50),
    Sketcher.Constraint("Horizontal", 51),
    Sketcher.Constraint("Vertical", 56),
    Sketcher.Constraint("Horizontal", 57),
    Sketcher.Constraint("Vertical", 58),
    Sketcher.Constraint("Horizontal", 59),
    Sketcher.Constraint("Equal", 53, 54),
    Sketcher.Constraint("Equal", 54, 55),
    Sketcher.Constraint("PointOnObject", 55, 3, -2),
    Sketcher.Constraint("Parallel", 4, 6),
    Sketcher.Constraint("Parallel", 6, 9),
    Sketcher.Constraint("Parallel", 9, 11),
    Sketcher.Constraint("Parallel", 11, 12),
    Sketcher.Constraint("Parallel", 12, 14),
    Sketcher.Constraint("Parallel", 14, 16),
    Sketcher.Constraint("Parallel", 16, 18),
    Sketcher.Constraint("Parallel", 18, 20),
    Sketcher.Constraint("Parallel", 20, 22),
    Sketcher.Constraint("Parallel", 22, 24),
    Sketcher.Constraint("Parallel", 24, 26),
    Sketcher.Constraint("Parallel", 26, 28),
    Sketcher.Constraint("Parallel", 28, 30),
    Sketcher.Constraint("Parallel", 30, 32),
    Sketcher.Constraint("Parallel", 32, 34),
    Sketcher.Constraint("Horizontal", 4, 2, 9, 2),
    Sketcher.Constraint("Horizontal", 11, 2, 12, 2),
    Sketcher.Constraint("Horizontal", 14, 2, 16, 2),
    Sketcher.Constraint("Horizontal", 18, 2, 20, 2),
    Sketcher.Constraint("Horizontal", 22, 2, 24, 2),
    Sketcher.Constraint("Horizontal", 26, 2, 28, 2),
    Sketcher.Constraint("Horizontal", 30, 2, 32, 2),
    Sketcher.Constraint("Horizontal", 41, 2, 44, 2),
    Sketcher.Constraint("Horizontal", 43, 2, 46, 2),
    Sketcher.Constraint("Horizontal", 37, 2, 48, 2),
    Sketcher.Constraint("Horizontal", 39, 2, 50, 2),
    Sketcher.Constraint("Vertical", 5, 2, 8, 2),
    Sketcher.Constraint("Vertical", 7, 2, 9, 2),
    Sketcher.Constraint("Vertical", 10, 2, 12, 2),
    Sketcher.Constraint("Vertical", 11, 2, 14, 2),
    Sketcher.Constraint("Vertical", 13, 2, 16, 2),
    Sketcher.Constraint("Vertical", 15, 2, 18, 2),
    Sketcher.Constraint("Vertical", 17, 2, 20, 2),
    Sketcher.Constraint("Vertical", 19, 2, 22, 2),
    Sketcher.Constraint("Vertical", 21, 2, 24, 2),
    Sketcher.Constraint("Vertical", 23, 2, 26, 2),
    Sketcher.Constraint("Vertical", 25, 2, 28, 2),
    Sketcher.Constraint("Vertical", 27, 2, 30, 2),
    Sketcher.Constraint("Vertical", 29, 2, 32, 2),
    Sketcher.Constraint("Vertical", 31, 2, 34, 2),
    Sketcher.Constraint("Vertical", 39, 2, 40, 2),
    Sketcher.Constraint("Vertical", 38, 2, 41, 2),
    Sketcher.Constraint("Vertical", 47, 2, 48, 2),
    Sketcher.Constraint("Vertical", 46, 2, 49, 2),
    Sketcher.Constraint("Equal", 43, 45),
    Sketcher.Constraint("Equal", 7, 8),
    Sketcher.Constraint("Equal", 10, 13),
    Sketcher.Constraint("Equal", 15, 17),
    Sketcher.Constraint("Equal", 19, 21),
    Sketcher.Constraint("Equal", 23, 25),
    Sketcher.Constraint("Equal", 27, 29),
    Sketcher.Constraint("Equal", 31, 33),
    Sketcher.Constraint("Equal", 38, 40),
    Sketcher.Constraint("Equal", 50, 56),
    Sketcher.Constraint("Diameter", 53, Q("0.3 in")),
    Sketcher.Constraint("DistanceX", 37, 1, 37, 2, Q("3.4 in")),
    Sketcher.Constraint("DistanceY", 0, 2, 0, 1, Q("12.2 in")),
    Sketcher.Constraint("DistanceY", 36, 2, 36, 1, Q("0.2 in")),
    Sketcher.Constraint("DistanceY", 7, 2, 8, 2, Q("1 in")),
    Sketcher.Constraint("DistanceY", 5, 2, 11, 2, Q("1 in")),
    Sketcher.Constraint("DistanceX", 40, 2, 44, 2, Q("4 in")),
    Sketcher.Constraint("DistanceX", 53, 3, 56, 2, Q("2 in")),
    Sketcher.Constraint("DistanceY", 0, 2, 53, 3, Q("12.5 in")),
    Sketcher.Constraint("DistanceX", 5, 2, 6, 2, Q("0.4 in")),
    Sketcher.Constraint("DistanceY", 56, 2, 53, 3, Q("0.1 in")),
    Sketcher.Constraint("Diameter", 52, 5.0),
    Sketcher.Constraint("DistanceX", 54, 3, 53, 3, Q("6.17 in")),
    Sketcher.Constraint("DistanceY", 55, 3, 53, 3, Q("12.75 in")),
    Sketcher.Constraint("DistanceX", 54, 3, 0, 2, Q("0.25 in")),
    Sketcher.Constraint("DistanceX", 4, 2, 52, 3, Q("2.55 in")),
    Sketcher.Constraint("DistanceY", 39, 2, 40, 2, Q("0.15 in")),
    Sketcher.Constraint("DistanceY", 52, 3, 4, 2, Q("2.755 in")),
    Sketcher.Constraint("DistanceX", 1, 1, 1, 2, 254.703631),
    Sketcher.Constraint("DistanceX", 57, 1, 57, 2, 57.019912),
    Sketcher.Constraint("DistanceX", 53, 3, -1, 1, 81.97908),
    Sketcher.Constraint("DistanceY", -1, 1, 53, 3, 203.87486),
    Sketcher.Constraint("DistanceX", 4, 2, -1, 1, 271.527738),
    Sketcher.Constraint("DistanceX", 36, 2, -1, 1, 193.570271),
    Sketcher.Constraint("DistanceY", 36, 2, -1, 1, 231.208471),
    Sketcher.Constraint("DistanceY", 52, 3, 54, 3, 264.439191),
    Sketcher.Constraint("DistanceY", 52, 3, -1, 1, 223.780845),
])
pocket1 = doc.addObject("PartDesign::Pocket", "Pocket")
body.addObject(pocket1)
pocket1.Profile = sketch2
pocket1.Length = Q("1 in")
pocket1.Reversed = True

# Sketch on XZ plane
sketch3 = doc.addObject("Sketcher::SketchObject", "Sketch002")
body.addObject(sketch3)
sketch3.AttachmentSupport = (doc.XZ_Plane, [""])
sketch3.MapMode = "FlatFace"
sketch3.addGeometry([
    Part.LineSegment(App.Vector(-224.760328, -128.296434, 0), App.Vector(-231.110328, -128.296434, 0)),  # 0
    Part.LineSegment(App.Vector(-231.110328, -128.296434, 0), App.Vector(-154.910328, -194.336434, 0)),  # 1
    Part.LineSegment(App.Vector(-154.910328, -194.336434, 0), App.Vector(-148.560328, -194.336434, 0)),  # 2
    Part.LineSegment(App.Vector(-148.560328, -194.336434, 0), App.Vector(-224.760328, -128.296434, 0)),  # 3
    Part.LineSegment(App.Vector(-205.710328, -128.296434, 0), App.Vector(-212.060328, -128.296434, 0)),  # 4
    Part.LineSegment(App.Vector(-212.060328, -128.296434, 0), App.Vector(-154.910328, -177.826434, 0)),  # 5
    Part.LineSegment(App.Vector(-154.910328, -177.826434, 0), App.Vector(-148.560328, -177.826434, 0)),  # 6
    Part.LineSegment(App.Vector(-148.560328, -177.826434, 0), App.Vector(-205.710328, -128.296434, 0)),  # 7
    Part.LineSegment(App.Vector(-224.760328, -145.913435, 0), App.Vector(-231.110328, -145.913435, 0)),  # 8
    Part.LineSegment(App.Vector(-231.110328, -145.913435, 0), App.Vector(-175.237637, -194.336434, 0)),  # 9
    Part.LineSegment(App.Vector(-175.237637, -194.336434, 0), App.Vector(-168.887637, -194.336434, 0)),  # 10
    Part.LineSegment(App.Vector(-168.887637, -194.336434, 0), App.Vector(-224.760328, -145.913435, 0)),  # 11
    Part.LineSegment(App.Vector(-224.760328, -161.858131, 0), App.Vector(-231.110328, -161.858131, 0)),  # 12
    Part.LineSegment(App.Vector(-231.110328, -161.858131, 0), App.Vector(-193.635364, -194.336434, 0)),  # 13
    Part.LineSegment(App.Vector(-193.635364, -194.336434, 0), App.Vector(-187.285364, -194.336434, 0)),  # 14
    Part.LineSegment(App.Vector(-187.285364, -194.336434, 0), App.Vector(-224.760328, -161.858131, 0)),  # 15
    Part.LineSegment(App.Vector(-224.760328, -177.031307, 0), App.Vector(-231.110328, -177.031307, 0)),  # 16
    Part.LineSegment(App.Vector(-231.110328, -177.031307, 0), App.Vector(-211.142873, -194.336434, 0)),  # 17
    Part.LineSegment(App.Vector(-211.142873, -194.336434, 0), App.Vector(-204.792873, -194.336434, 0)),  # 18
    Part.LineSegment(App.Vector(-204.792873, -194.336434, 0), App.Vector(-224.760328, -177.031307, 0)),  # 19
    Part.LineSegment(App.Vector(-154.910328, -163.62169, 0), App.Vector(-148.560328, -163.62169, 0)),  # 20
    Part.LineSegment(App.Vector(-148.560328, -163.62169, 0), App.Vector(-189.320239, -128.296434, 0)),  # 21
    Part.LineSegment(App.Vector(-189.320239, -128.296434, 0), App.Vector(-195.670239, -128.296434, 0)),  # 22
    Part.LineSegment(App.Vector(-195.670239, -128.296434, 0), App.Vector(-154.910328, -163.62169, 0)),  # 23
    Part.LineSegment(App.Vector(-154.910328, -148.76998, 0), App.Vector(-148.560328, -148.76998, 0)),  # 24
    Part.LineSegment(App.Vector(-148.560328, -148.76998, 0), App.Vector(-172.183651, -128.296434, 0)),  # 25
    Part.LineSegment(App.Vector(-172.183651, -128.296434, 0), App.Vector(-178.533651, -128.296434, 0)),  # 26
    Part.LineSegment(App.Vector(-178.533651, -128.296434, 0), App.Vector(-154.910328, -148.76998, 0)),  # 27
], False)
sketch3.addConstraint([
    Sketcher.Constraint("Coincident", 0, 2, 1, 1),
    Sketcher.Constraint("Coincident", 1, 2, 2, 1),
    Sketcher.Constraint("Coincident", 2, 2, 3, 1),
    Sketcher.Constraint("Coincident", 3, 2, 0, 1),
    Sketcher.Constraint("Coincident", 4, 2, 5, 1),
    Sketcher.Constraint("Coincident", 5, 2, 6, 1),
    Sketcher.Constraint("Coincident", 6, 2, 7, 1),
    Sketcher.Constraint("Coincident", 7, 2, 4, 1),
    Sketcher.Constraint("Coincident", 8, 2, 9, 1),
    Sketcher.Constraint("Coincident", 9, 2, 10, 1),
    Sketcher.Constraint("Coincident", 10, 2, 11, 1),
    Sketcher.Constraint("Coincident", 11, 2, 8, 1),
    Sketcher.Constraint("Coincident", 12, 2, 13, 1),
    Sketcher.Constraint("Coincident", 13, 2, 14, 1),
    Sketcher.Constraint("Coincident", 14, 2, 15, 1),
    Sketcher.Constraint("Coincident", 15, 2, 12, 1),
    Sketcher.Constraint("Coincident", 16, 2, 17, 1),
    Sketcher.Constraint("Coincident", 17, 2, 18, 1),
    Sketcher.Constraint("Coincident", 18, 2, 19, 1),
    Sketcher.Constraint("Coincident", 19, 2, 16, 1),
    Sketcher.Constraint("Coincident", 20, 2, 21, 1),
    Sketcher.Constraint("Coincident", 21, 2, 22, 1),
    Sketcher.Constraint("Coincident", 22, 2, 23, 1),
    Sketcher.Constraint("Coincident", 23, 2, 20, 1),
    Sketcher.Constraint("Coincident", 24, 2, 25, 1),
    Sketcher.Constraint("Coincident", 25, 2, 26, 1),
    Sketcher.Constraint("Coincident", 26, 2, 27, 1),
    Sketcher.Constraint("Coincident", 27, 2, 24, 1),
    Sketcher.Constraint("Horizontal", 0),
    Sketcher.Constraint("Horizontal", 2),
    Sketcher.Constraint("Horizontal", 4),
    Sketcher.Constraint("Horizontal", 6),
    Sketcher.Constraint("Horizontal", 8),
    Sketcher.Constraint("Horizontal", 10),
    Sketcher.Constraint("Horizontal", 12),
    Sketcher.Constraint("Horizontal", 14),
    Sketcher.Constraint("Horizontal", 16),
    Sketcher.Constraint("Horizontal", 18),
    Sketcher.Constraint("Horizontal", 20),
    Sketcher.Constraint("Horizontal", 22),
    Sketcher.Constraint("Horizontal", 24),
    Sketcher.Constraint("Horizontal", 26),
    Sketcher.Constraint("Parallel", 1, 3),
    Sketcher.Constraint("Parallel", 3, 5),
    Sketcher.Constraint("Parallel", 5, 7),
    Sketcher.Constraint("Parallel", 7, 9),
    Sketcher.Constraint("Parallel", 9, 11),
    Sketcher.Constraint("Parallel", 11, 13),
    Sketcher.Constraint("Parallel", 13, 15),
    Sketcher.Constraint("Parallel", 15, 17),
    Sketcher.Constraint("Parallel", 17, 19),
    Sketcher.Constraint("Parallel", 19, 21),
    Sketcher.Constraint("Parallel", 21, 23),
    Sketcher.Constraint("Parallel", 23, 25),
    Sketcher.Constraint("Parallel", 25, 27),
    Sketcher.Constraint("Horizontal", 3, 2, 4, 2),
    Sketcher.Constraint("Horizontal", 2, 2, 9, 2),
    Sketcher.Constraint("Horizontal", 10, 2, 13, 2),
    Sketcher.Constraint("Horizontal", 14, 2, 17, 2),
    Sketcher.Constraint("Horizontal", 7, 2, 21, 2),
    Sketcher.Constraint("Horizontal", 22, 2, 25, 2),
    Sketcher.Constraint("Vertical", 1, 2, 5, 2),
    Sketcher.Constraint("Vertical", 2, 2, 6, 2),
    Sketcher.Constraint("Vertical", 0, 2, 8, 2),
    Sketcher.Constraint("Vertical", 3, 2, 11, 2),
    Sketcher.Constraint("Vertical", 8, 2, 12, 2),
    Sketcher.Constraint("Vertical", 11, 2, 15, 2),
    Sketcher.Constraint("Vertical", 12, 2, 16, 2),
    Sketcher.Constraint("Vertical", 15, 2, 19, 2),
    Sketcher.Constraint("Vertical", 6, 2, 20, 2),
    Sketcher.Constraint("Vertical", 5, 2, 23, 2),
    Sketcher.Constraint("Vertical", 20, 2, 24, 2),
    Sketcher.Constraint("Vertical", 23, 2, 27, 2),
    Sketcher.Constraint("DistanceX", 0, 2, 1, 2, Q("3 in")),
    Sketcher.Constraint("DistanceX", 0, 2, 7, 2, Q("1 in")),
    Sketcher.Constraint("DistanceX", 0, 2, 0, 1, Q("0.25 in")),
    Sketcher.Constraint("DistanceY", 1, 2, 0, 2, Q("2.6 in")),
    Sketcher.Constraint("DistanceY", 8, 2, 0, 2, 17.617001),
    Sketcher.Constraint("Distance", 21, 53.937409),
    Sketcher.Constraint("DistanceX", 0, 2, -1, 1, 231.110328),
    Sketcher.Constraint("DistanceY", 12, 2, -1, 1, 161.858131),
    Sketcher.Constraint("DistanceY", 20, 2, -1, 1, 163.62169),
    Sketcher.Constraint("DistanceY", 24, 2, -1, 1, 148.76998),
    Sketcher.Constraint("DistanceX", 17, 2, 13, 2, 17.507509),
])
pocket2 = doc.addObject("PartDesign::Pocket", "Pocket001")
body.addObject(pocket2)
pocket2.Profile = sketch3
pocket2.Length = Q("1 in")
pocket2.Reversed = True

doc.recompute()
